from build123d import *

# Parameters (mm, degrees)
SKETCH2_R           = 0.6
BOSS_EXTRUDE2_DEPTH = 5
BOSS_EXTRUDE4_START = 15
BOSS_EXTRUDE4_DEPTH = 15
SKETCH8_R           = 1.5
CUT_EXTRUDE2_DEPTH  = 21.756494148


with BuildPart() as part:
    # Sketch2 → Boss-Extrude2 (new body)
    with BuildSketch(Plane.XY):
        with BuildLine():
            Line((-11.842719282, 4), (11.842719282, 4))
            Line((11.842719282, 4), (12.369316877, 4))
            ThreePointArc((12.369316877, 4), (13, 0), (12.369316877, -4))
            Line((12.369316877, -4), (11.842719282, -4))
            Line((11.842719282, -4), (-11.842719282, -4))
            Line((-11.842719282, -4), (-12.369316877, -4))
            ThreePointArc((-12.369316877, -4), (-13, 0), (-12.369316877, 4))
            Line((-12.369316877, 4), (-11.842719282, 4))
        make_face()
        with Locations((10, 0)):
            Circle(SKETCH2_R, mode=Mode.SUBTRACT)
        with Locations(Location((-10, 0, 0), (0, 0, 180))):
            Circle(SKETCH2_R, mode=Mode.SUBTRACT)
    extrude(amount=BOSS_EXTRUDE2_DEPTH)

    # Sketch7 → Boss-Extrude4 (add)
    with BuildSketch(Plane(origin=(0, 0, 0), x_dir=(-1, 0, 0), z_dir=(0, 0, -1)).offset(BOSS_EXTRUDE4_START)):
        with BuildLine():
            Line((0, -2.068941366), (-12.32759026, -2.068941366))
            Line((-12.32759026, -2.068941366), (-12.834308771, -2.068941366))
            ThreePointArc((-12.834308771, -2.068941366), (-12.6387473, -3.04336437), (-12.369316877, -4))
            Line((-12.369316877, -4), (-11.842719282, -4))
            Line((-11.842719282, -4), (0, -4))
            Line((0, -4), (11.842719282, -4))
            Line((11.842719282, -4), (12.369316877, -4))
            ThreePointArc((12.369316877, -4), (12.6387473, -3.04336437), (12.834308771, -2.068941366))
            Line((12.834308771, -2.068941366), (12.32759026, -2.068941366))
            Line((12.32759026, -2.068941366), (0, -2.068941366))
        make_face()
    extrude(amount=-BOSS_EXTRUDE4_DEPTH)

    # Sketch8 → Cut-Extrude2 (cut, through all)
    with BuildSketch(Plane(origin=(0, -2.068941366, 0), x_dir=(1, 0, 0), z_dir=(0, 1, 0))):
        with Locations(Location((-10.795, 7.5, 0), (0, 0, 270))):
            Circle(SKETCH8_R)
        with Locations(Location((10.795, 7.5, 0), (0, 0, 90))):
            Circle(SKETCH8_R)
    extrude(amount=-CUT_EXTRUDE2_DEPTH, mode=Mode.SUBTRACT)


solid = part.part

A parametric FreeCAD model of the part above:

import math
import FreeCAD as App
import Part
import Sketcher

V = App.Vector

doc = App.newDocument("Part")
body = doc.addObject("PartDesign::Body", "Body")

# Sketch on XY plane
sketch1 = body.newObject("Sketcher::SketchObject", "Sketch")
sketch1.AttachmentSupport = (doc.getObject("XY_Plane"), [""])
sketch1.MapMode = "FlatFace"
sketch1.addGeometry(Part.ArcOfCircle(Part.Circle(V(0, 0, 0), V(0, 0, 1), 13), math.radians(-18), math.radians(18)), False)
sketch1.addGeometry(Part.LineSegment(V(12.4, 4, 0), V(-12.4, 4, 0)), False)
sketch1.addGeometry(Part.ArcOfCircle(Part.Circle(V(0, 0, 0), V(0, 0, 1), 13), math.radians(162), math.radians(198)), False)
sketch1.addGeometry(Part.LineSegment(V(-12.4, -4, 0), V(12.4, -4, 0)), False)
sketch1.addGeometry(Part.Circle(V(10, 0, 0), V(0, 0, 1), 0.6), False)
sketch1.addGeometry(Part.Circle(V(-10, 0, 0), V(0, 0, 1), 0.6), False)
sketch1.addConstraint(Sketcher.Constraint("Coincident", 0, 2, 1, 1))
sketch1.addConstraint(Sketcher.Constraint("Coincident", 1, 2, 2, 1))
sketch1.addConstraint(Sketcher.Constraint("Coincident", 2, 2, 3, 1))
sketch1.addConstraint(Sketcher.Constraint("Coincident", 3, 2, 0, 1))
sketch1.addConstraint(Sketcher.Constraint("Horizontal", 1))
sketch1.addConstraint(Sketcher.Constraint("Horizontal", 3))
sketch1.addConstraint(Sketcher.Constraint("Coincident", 0, 3, -1, 1))
sketch1.addConstraint(Sketcher.Constraint("Coincident", 2, 3, -1, 1))
sketch1.addConstraint(Sketcher.Constraint("Equal", 0, 2))
sketch1.addConstraint(Sketcher.Constraint("Equal", 4, 5))
sketch1.addConstraint(Sketcher.Constraint("Symmetric", 4, 3, 5, 3, -1, 1))
sketch1.addConstraint(Sketcher.Constraint("PointOnObject", 4, 3, -1))
sketch1.addConstraint(Sketcher.Constraint("Vertical", 1, 2, 2, 2))
sketch1.addConstraint(Sketcher.Constraint("Radius", 0, 13.0))
sketch1.addConstraint(Sketcher.Constraint("Diameter", 4, 1.2))
sketch1.addConstraint(Sketcher.Constraint("DistanceX", -1, 1, 4, 3, 10.0))
sketch1.addConstraint(Sketcher.Constraint("DistanceY", -1, 1, 0, 2, 4.0))
pad1 = body.newObject("PartDesign::Pad", "Pad")
pad1.Profile = sketch1
pad1.Length = 5

# Sketch on XY plane
sketch2 = body.newObject("Sketcher::SketchObject", "Sketch001")
sketch2.AttachmentSupport = (doc.getObject("XY_Plane"), [""])
sketch2.MapMode = "FlatFace"
sketch2.AttachmentOffset = App.Placement(V(0, 0, -15), App.Rotation())
sketch2.addGeometry(Part.ArcOfCircle(Part.Circle(V(0, 0, 0), V(0, 0, 1), 13), math.radians(-17.92), math.radians(-9.16)), False)
sketch2.addGeometry(Part.LineSegment(V(12.4, -4, 0), V(-12.4, -4, 0)), False)
sketch2.addGeometry(Part.ArcOfCircle(Part.Circle(V(0, 0, 0), V(0, 0, 1), 13), math.radians(-170.84), math.radians(-162.08)), False)
sketch2.addGeometry(Part.LineSegment(V(-12.8, -2.1, 0), V(12.8, -2.1, 0)), False)
sketch2.addConstraint(Sketcher.Constraint("Coincident", 0, 1, 1, 1))
sketch2.addConstraint(Sketcher.Constraint("Coincident", 1, 2, 2, 2))
sketch2.addConstraint(Sketcher.Constraint("Coincident", 2, 1, 3, 1))
sketch2.addConstraint(Sketcher.Constraint("Coincident", 3, 2, 0, 2))
sketch2.addConstraint(Sketcher.Constraint("Horizontal", 1))
sketch2.addConstraint(Sketcher.Constraint("Horizontal", 3))
sketch2.addConstraint(Sketcher.Constraint("Coincident", 0, 3, -1, 1))
sketch2.addConstraint(Sketcher.Constraint("Coincident", 2, 3, -1, 1))
sketch2.addConstraint(Sketcher.Constraint("Equal", 0, 2))
sketch2.addConstraint(Sketcher.Constraint("Radius", 0, 13.0))
sketch2.addConstraint(Sketcher.Constraint("DistanceY", 0, 1, -1, 1, 4.0))
sketch2.addConstraint(Sketcher.Constraint("DistanceX", 3, 1, 3, 2, 25.668618))
pad2 = body.newObject("PartDesign::Pad", "Pad001")
pad2.Profile = sketch2
pad2.Length = 15

# Sketch on XZ plane
sketch3 = body.newObject("Sketcher::SketchObject", "Sketch002")
sketch3.AttachmentSupport = (doc.getObject("XZ_Plane"), [""])
sketch3.MapMode = "FlatFace"
sketch3.AttachmentOffset = App.Placement(V(0, 0, 2.068941), App.Rotation())
sketch3.addGeometry(Part.Circle(V(-10.8, -7.5, 0), V(0, 0, 1), 1.5), False)
sketch3.addGeometry(Part.Circle(V(10.8, -7.5, 0), V(0, 0, 1), 1.5), False)
sketch3.addConstraint(Sketcher.Constraint("Equal", 0, 1))
sketch3.addConstraint(Sketcher.Constraint("Symmetric", 0, 3, 1, 3, -2))
sketch3.addConstraint(Sketcher.Constraint("Diameter", 0, 3.0))
sketch3.addConstraint(Sketcher.Constraint("DistanceY", 0, 3, -1, 1, 7.5))
sketch3.addConstraint(Sketcher.Constraint("DistanceX", 0, 3, 1, 3, 21.59))
pocket1 = body.newObject("PartDesign::Pocket", "Pocket")
pocket1.Profile = sketch3
pocket1.Type = "ThroughAll"
pocket1.Reversed = True

doc.recompute()
